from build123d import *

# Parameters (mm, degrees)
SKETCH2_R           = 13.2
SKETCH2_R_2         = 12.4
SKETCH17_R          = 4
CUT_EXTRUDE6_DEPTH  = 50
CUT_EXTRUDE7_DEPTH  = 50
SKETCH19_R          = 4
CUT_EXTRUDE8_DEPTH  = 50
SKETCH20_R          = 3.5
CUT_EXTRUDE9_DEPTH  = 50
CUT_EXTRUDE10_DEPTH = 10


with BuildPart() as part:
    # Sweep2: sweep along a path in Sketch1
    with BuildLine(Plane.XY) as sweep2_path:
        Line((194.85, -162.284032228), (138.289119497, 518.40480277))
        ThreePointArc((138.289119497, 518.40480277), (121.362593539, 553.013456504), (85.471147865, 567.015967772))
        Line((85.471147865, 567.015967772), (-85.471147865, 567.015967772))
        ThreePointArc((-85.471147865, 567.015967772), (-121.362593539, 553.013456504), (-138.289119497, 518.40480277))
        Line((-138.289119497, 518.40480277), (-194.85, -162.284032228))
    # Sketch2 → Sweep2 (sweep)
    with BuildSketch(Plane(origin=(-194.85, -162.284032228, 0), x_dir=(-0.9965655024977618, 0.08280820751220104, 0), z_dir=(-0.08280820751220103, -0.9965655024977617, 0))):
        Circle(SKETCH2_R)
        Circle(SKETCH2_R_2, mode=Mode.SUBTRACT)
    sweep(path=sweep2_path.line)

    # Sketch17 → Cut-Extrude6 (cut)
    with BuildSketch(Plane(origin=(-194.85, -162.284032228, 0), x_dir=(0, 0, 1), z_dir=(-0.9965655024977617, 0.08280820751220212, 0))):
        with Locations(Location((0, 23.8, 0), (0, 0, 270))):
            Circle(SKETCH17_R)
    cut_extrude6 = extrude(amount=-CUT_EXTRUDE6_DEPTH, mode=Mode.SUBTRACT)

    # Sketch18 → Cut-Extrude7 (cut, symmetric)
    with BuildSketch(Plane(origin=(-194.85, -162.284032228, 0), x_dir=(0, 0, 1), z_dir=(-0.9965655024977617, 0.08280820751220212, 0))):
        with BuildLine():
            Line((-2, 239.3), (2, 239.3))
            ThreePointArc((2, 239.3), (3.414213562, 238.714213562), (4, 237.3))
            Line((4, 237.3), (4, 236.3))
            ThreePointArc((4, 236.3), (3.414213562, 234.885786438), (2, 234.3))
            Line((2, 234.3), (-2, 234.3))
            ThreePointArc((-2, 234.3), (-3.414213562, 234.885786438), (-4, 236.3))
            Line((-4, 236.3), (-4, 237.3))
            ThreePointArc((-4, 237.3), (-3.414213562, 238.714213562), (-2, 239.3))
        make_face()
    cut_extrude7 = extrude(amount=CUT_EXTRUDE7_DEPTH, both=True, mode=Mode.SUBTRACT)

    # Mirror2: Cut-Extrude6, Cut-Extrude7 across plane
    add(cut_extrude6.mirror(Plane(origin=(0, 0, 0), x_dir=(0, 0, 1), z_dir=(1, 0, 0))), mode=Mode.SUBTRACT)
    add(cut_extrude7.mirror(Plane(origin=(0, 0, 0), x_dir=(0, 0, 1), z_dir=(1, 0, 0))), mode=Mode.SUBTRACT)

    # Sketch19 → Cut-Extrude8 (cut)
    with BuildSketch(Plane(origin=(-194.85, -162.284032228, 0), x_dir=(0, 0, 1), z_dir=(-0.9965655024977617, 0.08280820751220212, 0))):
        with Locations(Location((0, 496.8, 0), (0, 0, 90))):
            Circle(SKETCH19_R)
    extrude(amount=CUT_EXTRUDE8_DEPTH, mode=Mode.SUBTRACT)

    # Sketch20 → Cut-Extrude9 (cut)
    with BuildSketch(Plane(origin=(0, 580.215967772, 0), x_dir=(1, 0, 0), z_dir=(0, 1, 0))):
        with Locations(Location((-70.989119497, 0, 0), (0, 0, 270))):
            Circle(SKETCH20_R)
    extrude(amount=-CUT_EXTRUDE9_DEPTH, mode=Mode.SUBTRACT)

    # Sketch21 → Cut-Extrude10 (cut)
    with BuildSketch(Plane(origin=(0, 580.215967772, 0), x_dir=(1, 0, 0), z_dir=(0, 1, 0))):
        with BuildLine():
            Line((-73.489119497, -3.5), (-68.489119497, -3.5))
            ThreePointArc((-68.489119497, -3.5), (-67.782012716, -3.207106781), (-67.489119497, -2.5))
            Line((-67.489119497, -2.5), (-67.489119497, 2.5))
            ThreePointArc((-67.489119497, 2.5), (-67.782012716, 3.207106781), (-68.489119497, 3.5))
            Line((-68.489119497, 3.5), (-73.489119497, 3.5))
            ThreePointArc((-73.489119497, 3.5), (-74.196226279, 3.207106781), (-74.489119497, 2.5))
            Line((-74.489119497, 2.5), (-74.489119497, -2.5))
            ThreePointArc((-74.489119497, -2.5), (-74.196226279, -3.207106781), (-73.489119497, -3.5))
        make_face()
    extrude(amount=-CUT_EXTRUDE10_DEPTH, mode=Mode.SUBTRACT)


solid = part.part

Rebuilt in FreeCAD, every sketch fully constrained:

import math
import FreeCAD as App
import Part
import Sketcher

V = App.Vector
Q = App.Units.Quantity

doc = App.newDocument("Part")
body = doc.addObject("PartDesign::Body", "Body")

sketch1 = body.newObject("Sketcher::SketchObject", "Sketch")
sketch1.Placement = App.Placement(V(-194.85, -162.284032, 0), App.Rotation(V(-0.996565502, 0.082808208, 0), V(0, 0, -0.999999999), V(-0.082808208, -0.996565502, 0), "ZXY"))
sketch1.addGeometry([
    Part.Circle(V(0, 0, 0), V(0, 0, 1), 13.2),
    Part.Circle(V(0, 0, 0), V(0, 0, 1), 12.4),
], False)
sketch1.addConstraint([
    Sketcher.Constraint("Coincident", 0, 3, -1, 1),
    Sketcher.Constraint("Coincident", 1, 3, -1, 1),
    Sketcher.Constraint("Diameter", 0, Q("26.4 mm")),
    Sketcher.Constraint("Diameter", 1, Q("24.8 mm")),
])

sketch2 = body.newObject("Sketcher::SketchObject", "Sketch001")
sketch2.AttachmentSupport = (doc.getObject("XY_Plane"), [""])
sketch2.MapMode = "FlatFace"
sketch2.addGeometry([
    Part.LineSegment(V(194.85, -162.284032, 0), V(138.289119, 518.404803, 0)),
    Part.ArcOfCircle(Part.Circle(V(85.471148, 514.015968, 0), V(0, 0, 1), 53), math.radians(4.75), math.radians(90)),
    Part.LineSegment(V(85.471148, 567.015968, 0), V(-85.471148, 567.015968, 0)),
    Part.ArcOfCircle(Part.Circle(V(-85.471148, 514.015968, 0), V(0, 0, 1), 53), math.radians(90), math.radians(175.25)),
    Part.LineSegment(V(-138.289119, 518.404803, 0), V(-194.85, -162.284032, 0)),
], False)
sketch2.addConstraint([
    Sketcher.Constraint("Tangent", 0, 2, 1, 1),
    Sketcher.Constraint("Tangent", 1, 2, 2, 1),
    Sketcher.Constraint("Tangent", 2, 2, 3, 1),
    Sketcher.Constraint("Tangent", 3, 2, 4, 1),
    Sketcher.Constraint("Horizontal", 2),
    Sketcher.Constraint("Equal", 1, 3),
    Sketcher.Constraint("Symmetric", 0, 2, 3, 2, -2),
    Sketcher.Constraint("Horizontal", 0, 1, 4, 2),
    Sketcher.Constraint("Radius", 1, Q("53 mm")),
    Sketcher.Constraint("Angle", 0, Q("94.75 deg")),
    Sketcher.Constraint("DistanceY", 0, 1, 1, 3, Q("676.3 mm")),
    Sketcher.Constraint("DistanceX", 4, 2, 0, 1, Q("389.7 mm")),
    Sketcher.Constraint("DistanceY", -1, 1, 1, 3, Q("514.015968 mm")),
])
doc.recompute()

additivepipe = body.newObject("PartDesign::AdditivePipe", "AdditivePipe")
additivepipe.Profile = sketch1
additivepipe.Spine = (sketch2, ["Edge1", "Edge2", "Edge3", "Edge4", "Edge5"])

sketch3 = body.newObject("Sketcher::SketchObject", "Sketch002")
sketch3.Placement = App.Placement(V(-194.85, -162.284032, 0), App.Rotation(V(0, 0, 1), V(0.082808208, 0.996565502, 0), V(-0.996565502, 0.082808208, 0), "ZXY"))
sketch3.addGeometry(Part.Circle(V(0, 23.8, 0), V(0, 0, 1), 4), False)
sketch3.addConstraint([
    Sketcher.Constraint("PointOnObject", 0, 3, -2),
    Sketcher.Constraint("Diameter", 0, Q("8 mm")),
    Sketcher.Constraint("DistanceY", -1, 1, 0, 3, Q("23.8 mm")),
])
pocket1 = body.newObject("PartDesign::Pocket", "Pocket")
pocket1.Profile = sketch3
pocket1.Length = 50

sketch4 = body.newObject("Sketcher::SketchObject", "Sketch003")
sketch4.Placement = App.Placement(V(-194.85, -162.284032, 0), App.Rotation(V(0, 0, 1), V(0.082808208, 0.996565502, 0), V(-0.996565502, 0.082808208, 0), "ZXY"))
sketch4.addGeometry([
    Part.LineSegment(V(2, 239.3, 0), V(-2, 239.3, 0)),
    Part.ArcOfCircle(Part.Circle(V(-2, 237.3, 0), V(0, 0, 1), 2), math.radians(90), math.radians(180)),
    Part.LineSegment(V(-4, 237.3, 0), V(-4, 236.3, 0)),
    Part.ArcOfCircle(Part.Circle(V(-2, 236.3, 0), V(0, 0, 1), 2), math.radians(-180), math.radians(-90)),
    Part.LineSegment(V(-2, 234.3, 0), V(2, 234.3, 0)),
    Part.ArcOfCircle(Part.Circle(V(2, 236.3, 0), V(0, 0, 1), 2), math.radians(-90), math.radians(0)),
    Part.LineSegment(V(4, 236.3, 0), V(4, 237.3, 0)),
    Part.ArcOfCircle(Part.Circle(V(2, 237.3, 0), V(0, 0, 1), 2), math.radians(0), math.radians(90)),
], False)
sketch4.addConstraint([
    Sketcher.Constraint("Tangent", 0, 2, 1, 1),
    Sketcher.Constraint("Tangent", 1, 2, 2, 1),
    Sketcher.Constraint("Tangent", 2, 2, 3, 1),
    Sketcher.Constraint("Tangent", 3, 2, 4, 1),
    Sketcher.Constraint("Tangent", 4, 2, 5, 1),
    Sketcher.Constraint("Tangent", 5, 2, 6, 1),
    Sketcher.Constraint("Tangent", 6, 2, 7, 1),
    Sketcher.Constraint("Tangent", 7, 2, 0, 1),
    Sketcher.Constraint("Horizontal", 0),
    Sketcher.Constraint("Vertical", 2),
    Sketcher.Constraint("Horizontal", 4),
    Sketcher.Constraint("Vertical", 6),
    Sketcher.Constraint("Equal", 1, 3),
    Sketcher.Constraint("Equal", 3, 5),
    Sketcher.Constraint("Equal", 5, 7),
    Sketcher.Constraint("Radius", 1, Q("2 mm")),
    Sketcher.Constraint("DistanceX", 0, 2, 0, 1, Q("4 mm")),
    Sketcher.Constraint("DistanceY", 2, 2, 2, 1, Q("1 mm")),
    Sketcher.Constraint("DistanceX", 1, 3, -1, 1, Q("2 mm")),
    Sketcher.Constraint("DistanceY", -1, 1, 1, 3, Q("237.3 mm")),
])
pocket2 = body.newObject("PartDesign::Pocket", "Pocket001")
pocket2.Profile = sketch4
pocket2.Length = 100
pocket2.Midplane = True
doc.recompute()

mirrored = body.newObject("PartDesign::Mirrored", "Mirrored")
mirrored.Originals = [pocket1, pocket2]
mirrored.MirrorPlane = (doc.getObject("YZ_Plane"), [""])
body.Tip = mirrored

sketch5 = body.newObject("Sketcher::SketchObject", "Sketch004")
sketch5.Placement = App.Placement(V(-194.85, -162.284032, 0), App.Rotation(V(0, 0, 1), V(0.082808208, 0.996565502, 0), V(-0.996565502, 0.082808208, 0), "ZXY"))
sketch5.addGeometry(Part.Circle(V(0, 496.8, 0), V(0, 0, 1), 4), False)
sketch5.addConstraint([
    Sketcher.Constraint("PointOnObject", 0, 3, -2),
    Sketcher.Constraint("Diameter", 0, Q("8 mm")),
    Sketcher.Constraint("DistanceY", -1, 1, 0, 3, Q("496.8 mm")),
])
pocket3 = body.newObject("PartDesign::Pocket", "Pocket002")
pocket3.Profile = sketch5
pocket3.Length = 50
pocket3.Reversed = True

sketch6 = body.newObject("Sketcher::SketchObject", "Sketch005")
sketch6.AttachmentSupport = (doc.getObject("XZ_Plane"), [""])
sketch6.MapMode = "FlatFace"
sketch6.AttachmentOffset = App.Placement(V(0, 0, -580.215968), App.Rotation())
sketch6.addGeometry(Part.Circle(V(-70.989119, 0, 0), V(0, 0, 1), 3.5), False)
sketch6.addConstraint([
    Sketcher.Constraint("PointOnObject", 0, 3, -1),
    Sketcher.Constraint("Diameter", 0, Q("7 mm")),
    Sketcher.Constraint("DistanceX", 0, 3, -1, 1, Q("70.989119 mm")),
])
pocket4 = body.newObject("PartDesign::Pocket", "Pocket003")
pocket4.Profile = sketch6
pocket4.Length = 50
pocket4.Reversed = True

sketch7 = body.newObject("Sketcher::SketchObject", "Sketch006")
sketch7.AttachmentSupport = (doc.getObject("XZ_Plane"), [""])
sketch7.MapMode = "FlatFace"
sketch7.AttachmentOffset = App.Placement(V(0, 0, -580.215968), App.Rotation())
sketch7.addGeometry([
    Part.LineSegment(V(-73.489119, 3.5, 0), V(-68.489119, 3.5, 0)),
    Part.ArcOfCircle(Part.Circle(V(-68.489119, 2.5, 0), V(0, 0, 1), 1), math.radians(0), math.radians(90)),
    Part.LineSegment(V(-67.489119, 2.5, 0), V(-67.489119, -2.5, 0)),
    Part.ArcOfCircle(Part.Circle(V(-68.489119, -2.5, 0), V(0, 0, 1), 1), math.radians(-90), math.radians(0)),
    Part.LineSegment(V(-68.489119, -3.5, 0), V(-73.489119, -3.5, 0)),
    Part.ArcOfCircle(Part.Circle(V(-73.489119, -2.5, 0), V(0, 0, 1), 1), math.radians(180), math.radians(270)),
    Part.LineSegment(V(-74.489119, -2.5, 0), V(-74.489119, 2.5, 0)),
    Part.ArcOfCircle(Part.Circle(V(-73.489119, 2.5, 0), V(0, 0, 1), 1), math.radians(90), math.radians(180)),
], False)
sketch7.addConstraint([
    Sketcher.Constraint("Tangent", 0, 2, 1, 2),
    Sketcher.Constraint("Tangent", 1, 1, 2, 1),
    Sketcher.Constraint("Tangent", 2, 2, 3, 2),
    Sketcher.Constraint("Tangent", 3, 1, 4, 1),
    Sketcher.Constraint("Tangent", 4, 2, 5, 2),
    Sketcher.Constraint("Tangent", 5, 1, 6, 1),
    Sketcher.Constraint("Tangent", 6, 2, 7, 2),
    Sketcher.Constraint("Tangent", 7, 1, 0, 1),
    Sketcher.Constraint("Horizontal", 0),
    Sketcher.Constraint("Vertical", 2),
    Sketcher.Constraint("Horizontal", 4),
    Sketcher.Constraint("Vertical", 6),
    Sketcher.Constraint("Equal", 1, 3),
    Sketcher.Constraint("Equal", 3, 5),
    Sketcher.Constraint("Equal", 5, 7),
    Sketcher.Constraint("Equal", 4, 2),
    Sketcher.Constraint("Radius", 1, Q("1 mm")),
    Sketcher.Constraint("DistanceX", 0, 1, 0, 2, Q("5 mm")),
    Sketcher.Constraint("DistanceY", -1, 1, 1, 3, Q("2.5 mm")),
    Sketcher.Constraint("DistanceX", 1, 3, -1, 1, Q("68.489119 mm")),
])
pocket5 = body.newObject("PartDesign::Pocket", "Pocket004")
pocket5.Profile = sketch7
pocket5.Length = 10
pocket5.Reversed = True

doc.recompute()
